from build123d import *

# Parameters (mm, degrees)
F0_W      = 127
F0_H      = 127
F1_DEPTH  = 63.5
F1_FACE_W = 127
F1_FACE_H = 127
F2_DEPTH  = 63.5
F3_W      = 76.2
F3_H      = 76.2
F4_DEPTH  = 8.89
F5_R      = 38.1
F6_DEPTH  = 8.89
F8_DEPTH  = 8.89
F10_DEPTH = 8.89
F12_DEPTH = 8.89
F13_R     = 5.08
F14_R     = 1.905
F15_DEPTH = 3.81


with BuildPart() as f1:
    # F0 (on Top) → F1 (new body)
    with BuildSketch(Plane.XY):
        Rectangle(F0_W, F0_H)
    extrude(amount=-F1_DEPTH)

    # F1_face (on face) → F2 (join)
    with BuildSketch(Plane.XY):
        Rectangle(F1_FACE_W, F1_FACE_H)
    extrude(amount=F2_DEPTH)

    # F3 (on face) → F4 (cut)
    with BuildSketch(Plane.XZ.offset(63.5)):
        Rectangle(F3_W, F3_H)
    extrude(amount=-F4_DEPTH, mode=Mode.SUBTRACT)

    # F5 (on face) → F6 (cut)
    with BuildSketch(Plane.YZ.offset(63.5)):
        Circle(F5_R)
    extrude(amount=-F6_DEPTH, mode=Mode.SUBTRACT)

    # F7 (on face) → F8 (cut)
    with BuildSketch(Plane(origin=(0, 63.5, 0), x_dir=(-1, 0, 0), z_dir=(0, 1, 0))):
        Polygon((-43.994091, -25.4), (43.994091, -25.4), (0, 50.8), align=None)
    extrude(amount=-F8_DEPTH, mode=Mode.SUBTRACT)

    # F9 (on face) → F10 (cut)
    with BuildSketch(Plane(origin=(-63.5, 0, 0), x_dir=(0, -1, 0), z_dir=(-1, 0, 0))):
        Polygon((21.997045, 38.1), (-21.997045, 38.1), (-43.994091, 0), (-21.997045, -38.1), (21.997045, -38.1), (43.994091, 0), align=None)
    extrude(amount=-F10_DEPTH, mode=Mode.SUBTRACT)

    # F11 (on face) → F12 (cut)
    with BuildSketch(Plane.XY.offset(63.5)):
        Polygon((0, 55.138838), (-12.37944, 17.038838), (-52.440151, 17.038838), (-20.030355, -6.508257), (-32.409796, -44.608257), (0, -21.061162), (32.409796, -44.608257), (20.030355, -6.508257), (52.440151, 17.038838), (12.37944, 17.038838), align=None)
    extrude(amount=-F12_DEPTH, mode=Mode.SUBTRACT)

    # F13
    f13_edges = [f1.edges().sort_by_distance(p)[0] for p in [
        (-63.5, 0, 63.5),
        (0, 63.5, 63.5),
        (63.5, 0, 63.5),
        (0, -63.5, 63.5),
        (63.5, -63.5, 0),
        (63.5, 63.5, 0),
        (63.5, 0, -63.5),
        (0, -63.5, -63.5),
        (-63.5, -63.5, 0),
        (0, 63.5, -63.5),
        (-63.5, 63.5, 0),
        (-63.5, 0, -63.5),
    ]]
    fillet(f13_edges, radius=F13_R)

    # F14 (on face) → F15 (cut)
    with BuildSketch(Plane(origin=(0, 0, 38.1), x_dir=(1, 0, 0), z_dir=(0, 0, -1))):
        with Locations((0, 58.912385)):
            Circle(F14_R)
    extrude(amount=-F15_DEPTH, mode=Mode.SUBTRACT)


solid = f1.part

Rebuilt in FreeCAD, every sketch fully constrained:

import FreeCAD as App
import Part
import Sketcher
from FreeCAD import Vector
Q = App.Units.Quantity


def edges_at(feature, points):
    """Names of the edges that pass closest to the given points."""
    edges = feature.Shape.Edges
    near = lambda p: min(range(len(edges)), key=lambda i: edges[i].distToShape(Part.Vertex(*p))[0])
    return sorted({f"Edge{near(p) + 1}" for p in points})

doc = App.newDocument("Part")
body = doc.addObject("PartDesign::Body", "Body")

sketch1 = doc.addObject("Sketcher::SketchObject", "Sketch")
body.addObject(sketch1)
sketch1.AttachmentSupport = (doc.XY_Plane, [""])
sketch1.MapMode = "FlatFace"
sketch1.addGeometry(Part.LineSegment(Vector(-64, 64, 0), Vector(-64, -64, 0)), False)
sketch1.addGeometry(Part.LineSegment(Vector(-64, -64, 0), Vector(64, -64, 0)), False)
sketch1.addGeometry(Part.LineSegment(Vector(64, -64, 0), Vector(64, 64, 0)), False)
sketch1.addGeometry(Part.LineSegment(Vector(64, 64, 0), Vector(-64, 64, 0)), False)
sketch1.addConstraint(Sketcher.Constraint("Coincident", 0, 2, 1, 1))
sketch1.addConstraint(Sketcher.Constraint("Coincident", 1, 2, 2, 1))
sketch1.addConstraint(Sketcher.Constraint("Coincident", 2, 2, 3, 1))
sketch1.addConstraint(Sketcher.Constraint("Coincident", 3, 2, 0, 1))
sketch1.addConstraint(Sketcher.Constraint("Vertical", 0))
sketch1.addConstraint(Sketcher.Constraint("Horizontal", 1))
sketch1.addConstraint(Sketcher.Constraint("Vertical", 2))
sketch1.addConstraint(Sketcher.Constraint("Horizontal", 3))
sketch1.addConstraint(Sketcher.Constraint("Symmetric", 0, 2, 2, 2, -1, 1))
sketch1.addConstraint(Sketcher.Constraint("Equal", 3, 0))
sketch1.addConstraint(Sketcher.Constraint("DistanceX", 1, 1, 1, 2, Q("5 in")))
pad1 = doc.addObject("PartDesign::Pad", "Pad")
body.addObject(pad1)
pad1.Profile = sketch1
pad1.Length = Q("2.5 in")
pad1.Reversed = True

sketch2 = doc.addObject("Sketcher::SketchObject", "Sketch001")
body.addObject(sketch2)
sketch2.AttachmentSupport = (doc.XY_Plane, [""])
sketch2.MapMode = "FlatFace"
sketch2.addGeometry(Part.LineSegment(Vector(-64, 64, 0), Vector(-64, -64, 0)), False)
sketch2.addGeometry(Part.LineSegment(Vector(-64, -64, 0), Vector(64, -64, 0)), False)
sketch2.addGeometry(Part.LineSegment(Vector(64, -64, 0), Vector(64, 64, 0)), False)
sketch2.addGeometry(Part.LineSegment(Vector(64, 64, 0), Vector(-64, 64, 0)), False)
sketch2.addConstraint(Sketcher.Constraint("Coincident", 0, 2, 1, 1))
sketch2.addConstraint(Sketcher.Constraint("Coincident", 1, 2, 2, 1))
sketch2.addConstraint(Sketcher.Constraint("Coincident", 2, 2, 3, 1))
sketch2.addConstraint(Sketcher.Constraint("Coincident", 3, 2, 0, 1))
sketch2.addConstraint(Sketcher.Constraint("Vertical", 0))
sketch2.addConstraint(Sketcher.Constraint("Horizontal", 1))
sketch2.addConstraint(Sketcher.Constraint("Vertical", 2))
sketch2.addConstraint(Sketcher.Constraint("Horizontal", 3))
sketch2.addConstraint(Sketcher.Constraint("Symmetric", 0, 2, 2, 2, -1, 1))
sketch2.addConstraint(Sketcher.Constraint("Equal", 3, 0))
sketch2.addConstraint(Sketcher.Constraint("DistanceX", 1, 1, 1, 2, Q("5 in")))
pad2 = doc.addObject("PartDesign::Pad", "Pad001")
body.addObject(pad2)
pad2.Profile = sketch2
pad2.Length = Q("2.5 in")

sketch3 = doc.addObject("Sketcher::SketchObject", "Sketch002")
body.addObject(sketch3)
sketch3.AttachmentSupport = (doc.XZ_Plane, [""])
sketch3.MapMode = "FlatFace"
sketch3.AttachmentOffset = App.Placement(Vector(0, 0, 2.5 * 25.4), App.Rotation())
sketch3.addGeometry(Part.LineSegment(Vector(-38, 38, 0), Vector(-38, -38, 0)), False)
sketch3.addGeometry(Part.LineSegment(Vector(-38, -38, 0), Vector(38, -38, 0)), False)
sketch3.addGeometry(Part.LineSegment(Vector(38, -38, 0), Vector(38, 38, 0)), False)
sketch3.addGeometry(Part.LineSegment(Vector(38, 38, 0), Vector(-38, 38, 0)), False)
sketch3.addConstraint(Sketcher.Constraint("Coincident", 0, 2, 1, 1))
sketch3.addConstraint(Sketcher.Constraint("Coincident", 1, 2, 2, 1))
sketch3.addConstraint(Sketcher.Constraint("Coincident", 2, 2, 3, 1))
sketch3.addConstraint(Sketcher.Constraint("Coincident", 3, 2, 0, 1))
sketch3.addConstraint(Sketcher.Constraint("Vertical", 0))
sketch3.addConstraint(Sketcher.Constraint("Horizontal", 1))
sketch3.addConstraint(Sketcher.Constraint("Vertical", 2))
sketch3.addConstraint(Sketcher.Constraint("Horizontal", 3))
sketch3.addConstraint(Sketcher.Constraint("Symmetric", 0, 2, 2, 2, -1, 1))
sketch3.addConstraint(Sketcher.Constraint("Equal", 3, 0))
sketch3.addConstraint(Sketcher.Constraint("DistanceX", 1, 1, 1, 2, Q("3 in")))
pocket1 = doc.addObject("PartDesign::Pocket", "Pocket")
body.addObject(pocket1)
pocket1.Profile = sketch3
pocket1.Length = Q("0.35 in")

sketch4 = doc.addObject("Sketcher::SketchObject", "Sketch003")
body.addObject(sketch4)
sketch4.AttachmentSupport = (doc.YZ_Plane, [""])
sketch4.MapMode = "FlatFace"
sketch4.AttachmentOffset = App.Placement(Vector(0, 0, 2.5 * 25.4), App.Rotation())
sketch4.addGeometry(Part.Circle(Vector(0, 0, 0), Vector(0, 0, 1), 38), False)
sketch4.addConstraint(Sketcher.Constraint("Coincident", 0, 3, -1, 1))
sketch4.addConstraint(Sketcher.Constraint("Diameter", 0, Q("3 in")))
pocket2 = doc.addObject("PartDesign::Pocket", "Pocket001")
body.addObject(pocket2)
pocket2.Profile = sketch4
pocket2.Length = Q("0.35 in")

sketch5 = doc.addObject("Sketcher::SketchObject", "Sketch004")
body.addObject(sketch5)
sketch5.AttachmentSupport = (doc.XZ_Plane, [""])
sketch5.MapMode = "FlatFace"
sketch5.AttachmentOffset = App.Placement(Vector(0, 0, -2.5 * 25.4), App.Rotation())
sketch5.addGeometry(Part.LineSegment(Vector(44, -25, 0), Vector(-44, -25, 0)), False)
sketch5.addGeometry(Part.LineSegment(Vector(-44, -25, 0), Vector(0, 51, 0)), False)
sketch5.addGeometry(Part.LineSegment(Vector(0, 51, 0), Vector(44, -25, 0)), False)
sketch5.addConstraint(Sketcher.Constraint("Coincident", 0, 2, 1, 1))
sketch5.addConstraint(Sketcher.Constraint("Coincident", 1, 2, 2, 1))
sketch5.addConstraint(Sketcher.Constraint("Coincident", 2, 2, 0, 1))
sketch5.addConstraint(Sketcher.Constraint("Horizontal", 0))
sketch5.addConstraint(Sketcher.Constraint("PointOnObject", 1, 2, -2))
sketch5.addConstraint(Sketcher.Constraint("Equal", 1, 2))
sketch5.addConstraint(Sketcher.Constraint("DistanceY", 0, 2, -1, 1, Q("1 in")))
sketch5.addConstraint(Sketcher.Constraint("DistanceY", -1, 1, 1, 2, Q("2 in")))
sketch5.addConstraint(Sketcher.Constraint("Angle", 1, Q("60 deg")))
pocket3 = doc.addObject("PartDesign::Pocket", "Pocket002")
body.addObject(pocket3)
pocket3.Profile = sketch5
pocket3.Length = Q("0.35 in")
pocket3.Reversed = True

sketch6 = doc.addObject("Sketcher::SketchObject", "Sketch005")
body.addObject(sketch6)
sketch6.AttachmentSupport = (doc.YZ_Plane, [""])
sketch6.MapMode = "FlatFace"
sketch6.AttachmentOffset = App.Placement(Vector(0, 0, -2.5 * 25.4), App.Rotation())
sketch6.addGeometry(Part.LineSegment(Vector(-22, 38, 0), Vector(22, 38, 0)), False)
sketch6.addGeometry(Part.LineSegment(Vector(22, 38, 0), Vector(44, 0, 0)), False)
sketch6.addGeometry(Part.LineSegment(Vector(44, 0, 0), Vector(22, -38, 0)), False)
sketch6.addGeometry(Part.LineSegment(Vector(22, -38, 0), Vector(-22, -38, 0)), False)
sketch6.addGeometry(Part.LineSegment(Vector(-22, -38, 0), Vector(-44, 0, 0)), False)
sketch6.addGeometry(Part.LineSegment(Vector(-44, 0, 0), Vector(-22, 38, 0)), False)
sketch6.addConstraint(Sketcher.Constraint("Coincident", 0, 2, 1, 1))
sketch6.addConstraint(Sketcher.Constraint("Coincident", 1, 2, 2, 1))
sketch6.addConstraint(Sketcher.Constraint("Coincident", 2, 2, 3, 1))
sketch6.addConstraint(Sketcher.Constraint("Coincident", 3, 2, 4, 1))
sketch6.addConstraint(Sketcher.Constraint("Coincident", 4, 2, 5, 1))
sketch6.addConstraint(Sketcher.Constraint("Coincident", 5, 2, 0, 1))
sketch6.addConstraint(Sketcher.Constraint("Horizontal", 0))
sketch6.addConstraint(Sketcher.Constraint("Horizontal", 3))
sketch6.addConstraint(Sketcher.Constraint("Symmetric", 0, 2, 3, 2, -1, 1))
sketch6.addConstraint(Sketcher.Constraint("Symmetric", 1, 2, 4, 2, -1, 1))
sketch6.addConstraint(Sketcher.Constraint("PointOnObject", 1, 2, -1))
sketch6.addConstraint(Sketcher.Constraint("Parallel", 2, 5))
sketch6.addConstraint(Sketcher.Constraint("Vertical", 0, 2, 2, 2))
sketch6.addConstraint(Sketcher.Constraint("Angle", 1, Q("-59.999999 deg")))
sketch6.addConstraint(Sketcher.Constraint("DistanceY", 2, 2, 0, 2, Q("3 in")))
sketch6.addConstraint(Sketcher.Constraint("DistanceX", 0, 1, 0, 2, 43.99409))
pocket4 = doc.addObject("PartDesign::Pocket", "Pocket003")
body.addObject(pocket4)
pocket4.Profile = sketch6
pocket4.Length = Q("0.35 in")
pocket4.Reversed = True

sketch7 = doc.addObject("Sketcher::SketchObject", "Sketch006")
body.addObject(sketch7)
sketch7.AttachmentSupport = (doc.XY_Plane, [""])
sketch7.MapMode = "FlatFace"
sketch7.AttachmentOffset = App.Placement(Vector(0, 0, 2.5 * 25.4), App.Rotation())
sketch7.addGeometry(Part.LineSegment(Vector(0, 55, 0), Vector(-12, 17, 0)), False)
sketch7.addGeometry(Part.LineSegment(Vector(-12, 17, 0), Vector(-52, 17, 0)), False)
sketch7.addGeometry(Part.LineSegment(Vector(-52, 17, 0), Vector(-20, -7, 0)), False)
sketch7.addGeometry(Part.LineSegment(Vector(-20, -7, 0), Vector(-32, -45, 0)), False)
sketch7.addGeometry(Part.LineSegment(Vector(-32, -45, 0), Vector(0, -21, 0)), False)
sketch7.addGeometry(Part.LineSegment(Vector(0, -21, 0), Vector(32, -45, 0)), False)
sketch7.addGeometry(Part.LineSegment(Vector(32, -45, 0), Vector(20, -7, 0)), False)
sketch7.addGeometry(Part.LineSegment(Vector(20, -7, 0), Vector(52, 17, 0)), False)
sketch7.addGeometry(Part.LineSegment(Vector(52, 17, 0), Vector(12, 17, 0)), False)
sketch7.addGeometry(Part.LineSegment(Vector(12, 17, 0), Vector(0, 55, 0)), False)
sketch7.addConstraint(Sketcher.Constraint("Coincident", 0, 2, 1, 1))
sketch7.addConstraint(Sketcher.Constraint("Coincident", 1, 2, 2, 1))
sketch7.addConstraint(Sketcher.Constraint("Coincident", 2, 2, 3, 1))
sketch7.addConstraint(Sketcher.Constraint("Coincident", 3, 2, 4, 1))
sketch7.addConstraint(Sketcher.Constraint("Coincident", 4, 2, 5, 1))
sketch7.addConstraint(Sketcher.Constraint("Coincident", 5, 2, 6, 1))
sketch7.addConstraint(Sketcher.Constraint("Coincident", 6, 2, 7, 1))
sketch7.addConstraint(Sketcher.Constraint("Coincident", 7, 2, 8, 1))
sketch7.addConstraint(Sketcher.Constraint("Coincident", 8, 2, 9, 1))
sketch7.addConstraint(Sketcher.Constraint("Coincident", 9, 2, 0, 1))
sketch7.addConstraint(Sketcher.Constraint("Horizontal", 1))
sketch7.addConstraint(Sketcher.Constraint("Horizontal", 8))
sketch7.addConstraint(Sketcher.Constraint("Symmetric", 3, 2, 5, 2, -2))
sketch7.addConstraint(Sketcher.Constraint("Symmetric", 2, 2, 6, 2, -2))
sketch7.addConstraint(Sketcher.Constraint("Symmetric", 1, 2, 7, 2, -2))
sketch7.addConstraint(Sketcher.Constraint("PointOnObject", 4, 2, -2))
sketch7.addConstraint(Sketcher.Constraint("PointOnObject", 9, 2, -2))
sketch7.addConstraint(Sketcher.Constraint("Parallel", 0, 3))
sketch7.addConstraint(Sketcher.Constraint("Parallel", 2, 5))
sketch7.addConstraint(Sketcher.Constraint("Parallel", 6, 9))
sketch7.addConstraint(Sketcher.Constraint("Equal", 0, 2))
sketch7.addConstraint(Sketcher.Constraint("Equal", 2, 3))
sketch7.addConstraint(Sketcher.Constraint("Equal", 3, 4))
sketch7.addConstraint(Sketcher.Constraint("Angle", 0, Q("-107.999999 deg")))
sketch7.addConstraint(Sketcher.Constraint("Angle", 2, Q("-36 deg")))
sketch7.addConstraint(Sketcher.Constraint("DistanceY", 3, 2, 2, 2, Q("1.5 in")))
sketch7.addConstraint(Sketcher.Constraint("DistanceY", 4, 2, -1, 1, 21.061162))
pocket5 = doc.addObject("PartDesign::Pocket", "Pocket004")
body.addObject(pocket5)
pocket5.Profile = sketch7
pocket5.Length = Q("0.35 in")
doc.recompute()

fillet = doc.addObject("PartDesign::Fillet", "Fillet")
body.addObject(fillet)
fillet.Base = (pocket5, edges_at(pocket5, [
    (-63.5, 0, 63.5),
    (0, 63.5, 63.5),
    (63.5, 0, 63.5),
    (0, -63.5, 63.5),
    (63.5, -63.5, 0),
    (63.5, 63.5, 0),
    (63.5, 0, -63.5),
    (0, -63.5, -63.5),
    (-63.5, -63.5, 0),
    (0, 63.5, -63.5),
    (-63.5, 63.5, 0),
    (-63.5, 0, -63.5),
]))
fillet.Radius = Q("0.2 in")

sketch8 = doc.addObject("Sketcher::SketchObject", "Sketch007")
body.addObject(sketch8)
sketch8.AttachmentSupport = (doc.XY_Plane, [""])
sketch8.MapMode = "FlatFace"
sketch8.AttachmentOffset = App.Placement(Vector(0, 0, 1.5 * 25.4), App.Rotation())
sketch8.addGeometry(Part.Circle(Vector(0, -58.9, 0), Vector(0, 0, 1), 1.9), False)
sketch8.addConstraint(Sketcher.Constraint("PointOnObject", 0, 3, -2))
sketch8.addConstraint(Sketcher.Constraint("Diameter", 0, Q("0.15 in")))
sketch8.addConstraint(Sketcher.Constraint("DistanceY", 0, 3, -1, 1, 58.912385))
pocket6 = doc.addObject("PartDesign::Pocket", "Pocket005")
body.addObject(pocket6)
pocket6.Profile = sketch8
pocket6.Length = Q("0.15 in")
pocket6.Reversed = True

doc.recompute()
